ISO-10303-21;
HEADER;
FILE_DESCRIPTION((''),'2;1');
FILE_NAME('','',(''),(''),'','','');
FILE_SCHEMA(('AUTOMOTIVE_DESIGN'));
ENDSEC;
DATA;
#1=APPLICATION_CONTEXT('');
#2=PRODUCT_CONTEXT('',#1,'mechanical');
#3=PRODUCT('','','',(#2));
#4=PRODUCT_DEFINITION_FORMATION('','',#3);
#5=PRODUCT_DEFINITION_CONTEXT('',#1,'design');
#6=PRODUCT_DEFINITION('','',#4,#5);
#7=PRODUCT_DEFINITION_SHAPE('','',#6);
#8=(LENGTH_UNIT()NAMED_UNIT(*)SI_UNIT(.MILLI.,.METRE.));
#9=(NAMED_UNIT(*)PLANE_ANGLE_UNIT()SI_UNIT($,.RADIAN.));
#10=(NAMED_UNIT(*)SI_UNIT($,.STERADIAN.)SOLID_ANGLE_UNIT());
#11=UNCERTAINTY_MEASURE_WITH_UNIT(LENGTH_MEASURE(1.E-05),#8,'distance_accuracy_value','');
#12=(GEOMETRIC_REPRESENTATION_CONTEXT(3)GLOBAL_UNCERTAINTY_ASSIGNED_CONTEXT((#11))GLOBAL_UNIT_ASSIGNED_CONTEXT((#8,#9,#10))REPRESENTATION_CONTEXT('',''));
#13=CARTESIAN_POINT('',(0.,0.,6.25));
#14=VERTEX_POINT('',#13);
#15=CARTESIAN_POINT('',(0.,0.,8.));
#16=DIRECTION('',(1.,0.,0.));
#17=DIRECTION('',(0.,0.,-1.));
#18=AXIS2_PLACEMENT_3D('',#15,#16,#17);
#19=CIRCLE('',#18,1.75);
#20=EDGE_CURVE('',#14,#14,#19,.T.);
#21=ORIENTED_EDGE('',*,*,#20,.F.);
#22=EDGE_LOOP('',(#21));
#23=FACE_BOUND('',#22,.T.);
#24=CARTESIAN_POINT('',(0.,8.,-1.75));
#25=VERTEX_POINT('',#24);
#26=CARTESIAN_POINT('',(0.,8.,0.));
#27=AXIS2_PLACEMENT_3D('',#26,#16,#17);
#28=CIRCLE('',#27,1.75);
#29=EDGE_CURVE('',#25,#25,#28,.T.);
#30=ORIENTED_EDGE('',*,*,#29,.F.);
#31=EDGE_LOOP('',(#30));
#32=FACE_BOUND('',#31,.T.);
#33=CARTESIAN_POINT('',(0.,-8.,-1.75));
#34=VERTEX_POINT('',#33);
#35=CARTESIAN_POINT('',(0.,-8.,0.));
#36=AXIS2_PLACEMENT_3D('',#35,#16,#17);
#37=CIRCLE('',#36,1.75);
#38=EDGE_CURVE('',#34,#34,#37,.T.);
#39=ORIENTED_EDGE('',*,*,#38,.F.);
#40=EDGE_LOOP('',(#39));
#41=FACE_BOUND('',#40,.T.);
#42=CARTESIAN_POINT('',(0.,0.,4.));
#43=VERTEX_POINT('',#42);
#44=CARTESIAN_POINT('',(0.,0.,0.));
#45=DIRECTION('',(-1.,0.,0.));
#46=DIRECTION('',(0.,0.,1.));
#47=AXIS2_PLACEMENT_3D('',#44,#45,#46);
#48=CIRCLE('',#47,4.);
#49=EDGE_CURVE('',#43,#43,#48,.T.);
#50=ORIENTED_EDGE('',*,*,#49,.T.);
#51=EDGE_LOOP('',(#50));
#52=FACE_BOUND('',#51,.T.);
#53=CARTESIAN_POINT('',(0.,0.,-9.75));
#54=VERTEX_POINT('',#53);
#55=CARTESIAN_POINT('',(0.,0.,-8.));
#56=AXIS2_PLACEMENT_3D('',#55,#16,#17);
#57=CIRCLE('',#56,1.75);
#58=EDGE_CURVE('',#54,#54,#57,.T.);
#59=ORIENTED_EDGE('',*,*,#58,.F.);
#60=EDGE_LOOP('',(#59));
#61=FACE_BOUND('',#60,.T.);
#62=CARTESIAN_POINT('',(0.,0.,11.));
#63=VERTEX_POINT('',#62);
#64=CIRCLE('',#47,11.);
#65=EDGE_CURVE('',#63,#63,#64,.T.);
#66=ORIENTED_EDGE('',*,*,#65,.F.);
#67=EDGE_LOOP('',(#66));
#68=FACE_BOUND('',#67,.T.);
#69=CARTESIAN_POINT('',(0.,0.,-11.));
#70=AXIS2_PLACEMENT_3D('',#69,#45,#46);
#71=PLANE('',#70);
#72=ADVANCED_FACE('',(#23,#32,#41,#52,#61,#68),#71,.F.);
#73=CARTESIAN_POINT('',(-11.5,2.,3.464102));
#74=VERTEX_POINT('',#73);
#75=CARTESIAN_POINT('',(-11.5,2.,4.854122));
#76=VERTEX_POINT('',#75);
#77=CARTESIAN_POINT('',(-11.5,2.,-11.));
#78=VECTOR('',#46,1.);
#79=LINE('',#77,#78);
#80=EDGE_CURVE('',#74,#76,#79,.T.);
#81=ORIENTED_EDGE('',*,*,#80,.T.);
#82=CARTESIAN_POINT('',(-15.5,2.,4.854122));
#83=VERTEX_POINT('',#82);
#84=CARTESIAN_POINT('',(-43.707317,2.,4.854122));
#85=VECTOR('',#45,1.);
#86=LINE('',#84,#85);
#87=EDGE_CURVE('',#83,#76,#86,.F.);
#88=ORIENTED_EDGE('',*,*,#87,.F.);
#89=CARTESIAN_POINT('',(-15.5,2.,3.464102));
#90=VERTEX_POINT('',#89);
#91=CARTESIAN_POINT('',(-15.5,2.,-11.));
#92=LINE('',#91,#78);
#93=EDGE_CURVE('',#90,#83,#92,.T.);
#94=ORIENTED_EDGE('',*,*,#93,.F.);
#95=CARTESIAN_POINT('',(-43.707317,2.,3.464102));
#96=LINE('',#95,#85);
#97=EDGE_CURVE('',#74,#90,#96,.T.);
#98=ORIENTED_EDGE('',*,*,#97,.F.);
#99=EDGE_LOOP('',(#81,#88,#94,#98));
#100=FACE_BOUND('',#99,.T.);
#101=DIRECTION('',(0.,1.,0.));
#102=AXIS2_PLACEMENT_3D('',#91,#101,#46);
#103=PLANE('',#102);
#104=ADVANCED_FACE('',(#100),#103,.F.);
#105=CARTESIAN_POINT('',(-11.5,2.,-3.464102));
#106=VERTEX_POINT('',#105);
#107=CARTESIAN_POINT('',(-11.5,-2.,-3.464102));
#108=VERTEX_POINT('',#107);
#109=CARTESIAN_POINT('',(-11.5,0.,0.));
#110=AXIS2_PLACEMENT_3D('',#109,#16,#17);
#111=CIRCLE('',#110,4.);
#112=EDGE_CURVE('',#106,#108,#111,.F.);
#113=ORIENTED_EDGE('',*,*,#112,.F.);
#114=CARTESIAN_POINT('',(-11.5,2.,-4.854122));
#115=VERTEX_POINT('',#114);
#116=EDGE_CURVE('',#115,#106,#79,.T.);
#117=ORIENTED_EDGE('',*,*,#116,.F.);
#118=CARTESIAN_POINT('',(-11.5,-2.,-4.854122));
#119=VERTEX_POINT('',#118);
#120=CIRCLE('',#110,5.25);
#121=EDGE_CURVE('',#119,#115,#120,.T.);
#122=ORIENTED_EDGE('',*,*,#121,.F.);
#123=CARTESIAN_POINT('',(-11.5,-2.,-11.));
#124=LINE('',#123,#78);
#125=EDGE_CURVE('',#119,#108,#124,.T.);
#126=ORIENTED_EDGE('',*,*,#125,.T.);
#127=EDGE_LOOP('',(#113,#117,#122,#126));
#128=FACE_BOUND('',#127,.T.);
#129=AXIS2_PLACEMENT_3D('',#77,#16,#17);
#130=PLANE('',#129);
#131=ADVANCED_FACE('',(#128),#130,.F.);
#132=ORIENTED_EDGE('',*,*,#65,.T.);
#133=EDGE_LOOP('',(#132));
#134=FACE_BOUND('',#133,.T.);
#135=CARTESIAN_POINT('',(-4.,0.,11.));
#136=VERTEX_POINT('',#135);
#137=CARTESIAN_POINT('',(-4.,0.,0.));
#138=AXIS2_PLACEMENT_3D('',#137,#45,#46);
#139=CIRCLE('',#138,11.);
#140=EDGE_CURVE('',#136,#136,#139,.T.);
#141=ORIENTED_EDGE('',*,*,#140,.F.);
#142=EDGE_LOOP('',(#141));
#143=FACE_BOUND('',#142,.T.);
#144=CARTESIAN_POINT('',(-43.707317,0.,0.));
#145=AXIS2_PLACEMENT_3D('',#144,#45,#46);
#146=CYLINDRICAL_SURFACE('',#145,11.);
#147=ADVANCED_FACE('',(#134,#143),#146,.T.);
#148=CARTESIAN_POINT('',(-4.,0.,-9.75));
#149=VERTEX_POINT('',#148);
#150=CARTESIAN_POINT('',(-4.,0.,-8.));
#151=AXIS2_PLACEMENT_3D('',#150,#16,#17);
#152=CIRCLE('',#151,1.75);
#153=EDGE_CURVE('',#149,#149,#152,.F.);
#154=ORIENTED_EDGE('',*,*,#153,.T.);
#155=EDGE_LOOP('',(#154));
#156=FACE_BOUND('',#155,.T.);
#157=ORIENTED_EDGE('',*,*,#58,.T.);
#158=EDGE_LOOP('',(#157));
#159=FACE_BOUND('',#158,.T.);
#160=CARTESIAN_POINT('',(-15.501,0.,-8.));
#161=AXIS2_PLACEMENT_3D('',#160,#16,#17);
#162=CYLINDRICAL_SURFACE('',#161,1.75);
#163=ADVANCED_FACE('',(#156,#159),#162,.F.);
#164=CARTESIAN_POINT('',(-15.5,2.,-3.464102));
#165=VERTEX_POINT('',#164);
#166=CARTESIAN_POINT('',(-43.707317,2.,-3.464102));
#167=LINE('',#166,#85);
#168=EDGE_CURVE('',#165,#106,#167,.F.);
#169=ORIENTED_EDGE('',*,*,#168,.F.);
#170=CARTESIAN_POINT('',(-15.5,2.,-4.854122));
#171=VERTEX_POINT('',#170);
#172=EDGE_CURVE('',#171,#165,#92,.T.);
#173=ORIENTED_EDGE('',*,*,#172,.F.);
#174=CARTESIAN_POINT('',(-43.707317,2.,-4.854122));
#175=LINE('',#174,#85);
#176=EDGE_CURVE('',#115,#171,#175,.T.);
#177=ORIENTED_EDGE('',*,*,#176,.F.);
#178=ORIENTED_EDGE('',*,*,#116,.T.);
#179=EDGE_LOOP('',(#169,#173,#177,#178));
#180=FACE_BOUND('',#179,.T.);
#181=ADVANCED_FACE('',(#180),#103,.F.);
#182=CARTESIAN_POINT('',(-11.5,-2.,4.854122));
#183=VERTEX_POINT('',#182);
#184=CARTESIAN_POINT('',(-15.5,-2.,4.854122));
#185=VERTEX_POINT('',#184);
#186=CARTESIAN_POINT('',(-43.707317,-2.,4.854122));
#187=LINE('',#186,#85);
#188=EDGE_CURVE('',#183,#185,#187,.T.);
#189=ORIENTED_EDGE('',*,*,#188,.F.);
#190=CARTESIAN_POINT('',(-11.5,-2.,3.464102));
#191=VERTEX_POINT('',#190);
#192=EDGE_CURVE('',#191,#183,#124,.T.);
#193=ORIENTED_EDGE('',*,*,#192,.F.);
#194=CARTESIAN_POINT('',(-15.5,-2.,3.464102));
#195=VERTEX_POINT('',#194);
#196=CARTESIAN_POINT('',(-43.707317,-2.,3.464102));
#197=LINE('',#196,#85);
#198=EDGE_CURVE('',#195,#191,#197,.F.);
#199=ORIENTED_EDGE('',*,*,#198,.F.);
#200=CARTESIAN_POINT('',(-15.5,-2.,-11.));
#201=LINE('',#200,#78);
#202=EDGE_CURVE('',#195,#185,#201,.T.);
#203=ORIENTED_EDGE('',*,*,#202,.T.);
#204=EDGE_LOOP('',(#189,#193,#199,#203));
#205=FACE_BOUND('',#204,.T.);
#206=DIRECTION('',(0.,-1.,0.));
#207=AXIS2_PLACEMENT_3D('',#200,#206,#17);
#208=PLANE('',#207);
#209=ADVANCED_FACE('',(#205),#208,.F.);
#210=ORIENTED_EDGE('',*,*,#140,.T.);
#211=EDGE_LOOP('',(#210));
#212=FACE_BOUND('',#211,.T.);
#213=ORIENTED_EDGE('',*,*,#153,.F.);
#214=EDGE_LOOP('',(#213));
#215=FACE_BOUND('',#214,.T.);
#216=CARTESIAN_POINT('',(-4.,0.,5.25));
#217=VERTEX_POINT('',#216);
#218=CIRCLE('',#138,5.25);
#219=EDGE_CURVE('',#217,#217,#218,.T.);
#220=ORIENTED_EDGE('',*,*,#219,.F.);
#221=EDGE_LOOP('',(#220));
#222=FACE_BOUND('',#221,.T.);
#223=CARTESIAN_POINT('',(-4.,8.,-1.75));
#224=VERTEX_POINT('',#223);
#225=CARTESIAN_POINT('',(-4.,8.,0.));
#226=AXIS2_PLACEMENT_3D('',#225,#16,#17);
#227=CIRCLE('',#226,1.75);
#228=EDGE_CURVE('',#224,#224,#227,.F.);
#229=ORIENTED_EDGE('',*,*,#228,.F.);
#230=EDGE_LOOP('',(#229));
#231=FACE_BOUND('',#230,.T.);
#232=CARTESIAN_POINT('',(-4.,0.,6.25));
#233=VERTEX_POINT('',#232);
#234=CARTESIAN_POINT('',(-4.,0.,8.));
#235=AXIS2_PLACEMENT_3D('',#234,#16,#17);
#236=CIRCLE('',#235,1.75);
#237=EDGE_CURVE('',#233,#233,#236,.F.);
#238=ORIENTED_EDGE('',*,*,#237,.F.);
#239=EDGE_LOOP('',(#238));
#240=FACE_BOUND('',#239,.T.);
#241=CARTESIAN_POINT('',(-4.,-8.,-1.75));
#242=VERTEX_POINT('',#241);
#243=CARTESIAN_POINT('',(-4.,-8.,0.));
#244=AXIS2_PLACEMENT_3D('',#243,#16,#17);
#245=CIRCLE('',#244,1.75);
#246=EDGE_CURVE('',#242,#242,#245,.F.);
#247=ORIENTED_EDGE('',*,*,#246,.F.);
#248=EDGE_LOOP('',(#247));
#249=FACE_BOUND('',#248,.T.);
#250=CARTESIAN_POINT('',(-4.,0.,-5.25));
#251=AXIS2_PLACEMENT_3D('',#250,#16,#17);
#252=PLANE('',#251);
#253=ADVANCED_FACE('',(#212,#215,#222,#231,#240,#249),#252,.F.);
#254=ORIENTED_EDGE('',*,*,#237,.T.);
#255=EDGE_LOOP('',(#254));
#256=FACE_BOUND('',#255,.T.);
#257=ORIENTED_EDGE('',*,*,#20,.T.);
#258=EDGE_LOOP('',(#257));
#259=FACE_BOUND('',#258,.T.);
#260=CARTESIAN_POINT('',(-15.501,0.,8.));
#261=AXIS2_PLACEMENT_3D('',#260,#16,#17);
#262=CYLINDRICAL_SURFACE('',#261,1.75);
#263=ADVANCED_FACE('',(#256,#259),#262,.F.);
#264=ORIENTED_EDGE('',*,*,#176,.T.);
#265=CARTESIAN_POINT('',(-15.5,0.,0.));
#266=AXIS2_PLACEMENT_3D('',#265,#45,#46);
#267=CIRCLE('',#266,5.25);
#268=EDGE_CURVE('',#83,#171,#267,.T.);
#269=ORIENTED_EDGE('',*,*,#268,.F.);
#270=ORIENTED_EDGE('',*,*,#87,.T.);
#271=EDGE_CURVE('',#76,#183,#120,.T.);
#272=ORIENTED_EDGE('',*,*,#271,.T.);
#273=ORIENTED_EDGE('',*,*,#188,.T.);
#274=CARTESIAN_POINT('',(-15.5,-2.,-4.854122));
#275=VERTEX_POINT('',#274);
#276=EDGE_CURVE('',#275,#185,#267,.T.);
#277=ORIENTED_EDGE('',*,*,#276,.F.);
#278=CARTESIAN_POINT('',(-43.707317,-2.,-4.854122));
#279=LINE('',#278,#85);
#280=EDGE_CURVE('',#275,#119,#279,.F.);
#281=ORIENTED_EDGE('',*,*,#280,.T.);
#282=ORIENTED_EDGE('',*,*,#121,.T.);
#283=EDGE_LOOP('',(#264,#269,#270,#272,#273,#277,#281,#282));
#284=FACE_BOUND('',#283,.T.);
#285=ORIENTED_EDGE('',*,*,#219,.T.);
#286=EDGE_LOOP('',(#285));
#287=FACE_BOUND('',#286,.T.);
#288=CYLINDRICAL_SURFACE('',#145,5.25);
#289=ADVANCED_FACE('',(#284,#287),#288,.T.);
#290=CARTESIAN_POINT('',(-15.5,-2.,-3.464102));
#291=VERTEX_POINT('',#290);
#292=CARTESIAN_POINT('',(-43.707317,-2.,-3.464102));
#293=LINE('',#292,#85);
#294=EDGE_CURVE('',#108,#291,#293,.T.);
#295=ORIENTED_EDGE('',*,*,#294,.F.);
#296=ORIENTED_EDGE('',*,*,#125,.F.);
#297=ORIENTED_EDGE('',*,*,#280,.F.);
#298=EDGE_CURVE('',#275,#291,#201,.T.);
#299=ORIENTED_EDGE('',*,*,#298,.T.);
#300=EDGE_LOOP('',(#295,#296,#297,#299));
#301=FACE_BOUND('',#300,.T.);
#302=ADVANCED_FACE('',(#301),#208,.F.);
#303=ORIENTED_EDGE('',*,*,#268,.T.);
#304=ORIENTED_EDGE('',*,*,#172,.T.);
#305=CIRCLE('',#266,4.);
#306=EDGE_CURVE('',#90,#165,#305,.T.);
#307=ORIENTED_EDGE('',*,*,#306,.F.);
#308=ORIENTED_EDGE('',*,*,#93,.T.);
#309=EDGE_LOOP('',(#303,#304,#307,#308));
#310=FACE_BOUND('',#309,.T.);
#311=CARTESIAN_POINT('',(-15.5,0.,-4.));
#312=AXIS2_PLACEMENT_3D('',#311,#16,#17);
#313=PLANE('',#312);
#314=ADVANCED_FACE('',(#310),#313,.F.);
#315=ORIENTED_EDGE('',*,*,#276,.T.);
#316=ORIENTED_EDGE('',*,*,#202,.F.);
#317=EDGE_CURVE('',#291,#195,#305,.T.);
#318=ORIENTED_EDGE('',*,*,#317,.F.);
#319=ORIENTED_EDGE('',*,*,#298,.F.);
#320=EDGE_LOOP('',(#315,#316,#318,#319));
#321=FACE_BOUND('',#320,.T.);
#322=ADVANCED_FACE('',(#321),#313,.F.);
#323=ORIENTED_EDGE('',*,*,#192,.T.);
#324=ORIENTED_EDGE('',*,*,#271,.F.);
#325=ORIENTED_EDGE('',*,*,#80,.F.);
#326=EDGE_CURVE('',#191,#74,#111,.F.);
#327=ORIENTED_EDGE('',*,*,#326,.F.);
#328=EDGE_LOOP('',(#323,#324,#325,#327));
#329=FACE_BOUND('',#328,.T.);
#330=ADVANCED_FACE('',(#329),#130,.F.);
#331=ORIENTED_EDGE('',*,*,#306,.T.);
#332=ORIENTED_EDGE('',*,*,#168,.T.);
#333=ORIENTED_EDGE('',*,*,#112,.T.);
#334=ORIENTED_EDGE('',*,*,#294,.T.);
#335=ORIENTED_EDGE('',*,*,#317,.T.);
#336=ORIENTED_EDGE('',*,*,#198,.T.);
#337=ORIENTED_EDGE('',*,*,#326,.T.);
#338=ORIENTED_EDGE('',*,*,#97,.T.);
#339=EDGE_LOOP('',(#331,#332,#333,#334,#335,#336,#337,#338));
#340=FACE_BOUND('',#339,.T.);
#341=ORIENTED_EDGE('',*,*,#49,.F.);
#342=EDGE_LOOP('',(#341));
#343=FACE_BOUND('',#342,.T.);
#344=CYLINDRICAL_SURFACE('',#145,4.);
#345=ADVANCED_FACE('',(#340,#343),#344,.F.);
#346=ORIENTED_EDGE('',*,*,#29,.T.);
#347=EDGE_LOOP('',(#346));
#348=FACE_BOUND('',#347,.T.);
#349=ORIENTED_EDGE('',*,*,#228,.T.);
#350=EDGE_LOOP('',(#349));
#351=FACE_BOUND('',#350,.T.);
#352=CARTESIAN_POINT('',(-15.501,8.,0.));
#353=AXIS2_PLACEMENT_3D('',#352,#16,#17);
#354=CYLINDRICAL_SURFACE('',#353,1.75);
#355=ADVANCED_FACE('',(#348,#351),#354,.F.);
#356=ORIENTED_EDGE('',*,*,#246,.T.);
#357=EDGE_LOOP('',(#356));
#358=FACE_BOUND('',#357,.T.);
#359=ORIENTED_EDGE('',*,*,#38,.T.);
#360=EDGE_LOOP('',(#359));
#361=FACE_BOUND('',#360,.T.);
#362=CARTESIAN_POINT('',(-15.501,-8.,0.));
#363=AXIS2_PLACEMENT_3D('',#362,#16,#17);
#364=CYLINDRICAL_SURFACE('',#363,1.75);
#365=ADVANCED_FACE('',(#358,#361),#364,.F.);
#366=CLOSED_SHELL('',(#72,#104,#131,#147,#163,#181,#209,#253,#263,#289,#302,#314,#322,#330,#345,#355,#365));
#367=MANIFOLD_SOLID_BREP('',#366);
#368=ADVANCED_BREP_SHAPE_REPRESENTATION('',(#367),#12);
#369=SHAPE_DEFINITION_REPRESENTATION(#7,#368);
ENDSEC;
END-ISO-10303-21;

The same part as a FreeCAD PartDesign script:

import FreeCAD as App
import Part
import Sketcher


def add_polygon(sketch, points):
    """Adds a closed chain of lines whose ends are joined by coincident constraints."""
    first, n = sketch.GeometryCount, len(points)
    for a, b in zip(points, points[1:] + points[:1]):
        sketch.addGeometry(Part.LineSegment(App.Vector(*a, 0), App.Vector(*b, 0)), False)
    for i in range(n):
        sketch.addConstraint(Sketcher.Constraint("Coincident", first + i, 2, first + (i + 1) % n, 1))

doc = App.newDocument("Part")
params = doc.addObject("Spreadsheet::Sheet", "Params")
for row, (alias, value) in enumerate([
    ("sketch1_width", "4 mm"),
    ("sketch1_height", "7 mm"),
    ("sketch1_width2", "15.5 mm"),
    ("sketch1_height2", "1.25 mm"),
    ("revolution_angle", "360 deg"),
    ("sketch2_diameter", "3.5 mm"),
    ("sketch3_diameter", "3.5 mm"),
    ("sketch4_diameter", "3.5 mm"),
    ("sketch5_diameter", "3.5 mm"),
    ("sketch6_width", "4 mm"),
], start=1):
    params.set(f"A{row}", alias)
    params.set(f"B{row}", "=" + value)
    params.setAlias(f"B{row}", alias)

body = doc.addObject("PartDesign::Body", "Body")

# Sketch on XZ plane
sketch1 = body.newObject("Sketcher::SketchObject", "Sketch")
sketch1.AttachmentSupport = (doc.getObject("XZ_Plane"), [""])
sketch1.MapMode = "FlatFace"
add_polygon(sketch1, [(-15.5, -5.25), (-15.5, -4), (0, -4), (0, -11), (-4, -11), (-4, -5.25)])  # lines 0-5
sketch1.addConstraint(Sketcher.Constraint("Vertical", 0))
sketch1.addConstraint(Sketcher.Constraint("Horizontal", 1))
sketch1.addConstraint(Sketcher.Constraint("Vertical", 2))
sketch1.addConstraint(Sketcher.Constraint("Horizontal", 3))
sketch1.addConstraint(Sketcher.Constraint("Vertical", 4))
sketch1.addConstraint(Sketcher.Constraint("Horizontal", 5))
sketch1.addConstraint(Sketcher.Constraint("PointOnObject", 1, 2, -2))
sketch1.addConstraint(Sketcher.Constraint("DistanceX", 3, 2, 3, 1, 4.0))
sketch1.addConstraint(Sketcher.Constraint("DistanceY", 2, 2, 2, 1, 7.0))
sketch1.addConstraint(Sketcher.Constraint("DistanceX", 1, 1, 1, 2, 15.5))
sketch1.addConstraint(Sketcher.Constraint("DistanceY", 0, 2, -1, 1, 4.0))
sketch1.addConstraint(Sketcher.Constraint("DistanceY", 0, 1, 0, 2, 1.25))
sketch1.setExpression("Constraints[13]", "Params.sketch1_width")
sketch1.setExpression("Constraints[14]", "Params.sketch1_height")
sketch1.setExpression("Constraints[15]", "Params.sketch1_width2")
sketch1.setExpression("Constraints[17]", "Params.sketch1_height2")
revolution = body.newObject("PartDesign::Revolution", "Revolution")
revolution.Profile = sketch1
revolution.ReferenceAxis = (sketch1, ["H_Axis"])
revolution.setExpression("Angle", "Params.revolution_angle")

# Sketch on YZ plane
sketch2 = body.newObject("Sketcher::SketchObject", "Sketch001")
sketch2.AttachmentSupport = (doc.getObject("YZ_Plane"), [""])
sketch2.MapMode = "FlatFace"
sketch2.addGeometry(Part.Circle(App.Vector(8, 0, 0), App.Vector(0, 0, 1), 1.75), False)
sketch2.addConstraint(Sketcher.Constraint("PointOnObject", 0, 3, -1))
sketch2.addConstraint(Sketcher.Constraint("Diameter", 0, 3.5))
sketch2.addConstraint(Sketcher.Constraint("DistanceX", -1, 1, 0, 3, 8.0))
sketch2.setExpression("Constraints[1]", "Params.sketch2_diameter")
pocket1 = body.newObject("PartDesign::Pocket", "Pocket")
pocket1.Profile = sketch2
pocket1.Type = "UpToFirst"

# Sketch on YZ plane
sketch3 = body.newObject("Sketcher::SketchObject", "Sketch002")
sketch3.AttachmentSupport = (doc.getObject("YZ_Plane"), [""])
sketch3.MapMode = "FlatFace"
sketch3.addGeometry(Part.Circle(App.Vector(0, -8, 0), App.Vector(0, 0, 1), 1.75), False)
sketch3.addConstraint(Sketcher.Constraint("PointOnObject", 0, 3, -2))
sketch3.addConstraint(Sketcher.Constraint("Diameter", 0, 3.5))
sketch3.addConstraint(Sketcher.Constraint("DistanceY", 0, 3, -1, 1, 8.0))
sketch3.setExpression("Constraints[1]", "Params.sketch3_diameter")
pocket2 = body.newObject("PartDesign::Pocket", "Pocket001")
pocket2.Profile = sketch3
pocket2.Type = "UpToFirst"

# Sketch on YZ plane
sketch4 = body.newObject("Sketcher::SketchObject", "Sketch003")
sketch4.AttachmentSupport = (doc.getObject("YZ_Plane"), [""])
sketch4.MapMode = "FlatFace"
sketch4.addGeometry(Part.Circle(App.Vector(-8, 0, 0), App.Vector(0, 0, 1), 1.75), False)
sketch4.addConstraint(Sketcher.Constraint("PointOnObject", 0, 3, -1))
sketch4.addConstraint(Sketcher.Constraint("Diameter", 0, 3.5))
sketch4.addConstraint(Sketcher.Constraint("DistanceX", 0, 3, -1, 1, 8.0))
sketch4.setExpression("Constraints[1]", "Params.sketch4_diameter")
pocket3 = body.newObject("PartDesign::Pocket", "Pocket002")
pocket3.Profile = sketch4
pocket3.Type = "UpToFirst"

# Sketch on YZ plane
sketch5 = body.newObject("Sketcher::SketchObject", "Sketch004")
sketch5.AttachmentSupport = (doc.getObject("YZ_Plane"), [""])
sketch5.MapMode = "FlatFace"
sketch5.addGeometry(Part.Circle(App.Vector(0, 8, 0), App.Vector(0, 0, 1), 1.75), False)
sketch5.addConstraint(Sketcher.Constraint("PointOnObject", 0, 3, -2))
sketch5.addConstraint(Sketcher.Constraint("Diameter", 0, 3.5))
sketch5.addConstraint(Sketcher.Constraint("DistanceY", -1, 1, 0, 3, 8.0))
sketch5.setExpression("Constraints[1]", "Params.sketch5_diameter")
pocket4 = body.newObject("PartDesign::Pocket", "Pocket003")
pocket4.Profile = sketch5
pocket4.Type = "UpToFirst"

# Sketch on XY plane
sketch6 = body.newObject("Sketcher::SketchObject", "Sketch005")
sketch6.AttachmentSupport = (doc.getObject("XY_Plane"), [""])
sketch6.MapMode = "FlatFace"
add_polygon(sketch6, [(-15.5, 2), (-15.5, -2), (-11.5, -2), (-11.5, 2)])  # lines 0-3
sketch6.addConstraint(Sketcher.Constraint("Vertical", 0))
sketch6.addConstraint(Sketcher.Constraint("Horizontal", 1))
sketch6.addConstraint(Sketcher.Constraint("Vertical", 2))
sketch6.addConstraint(Sketcher.Constraint("Horizontal", 3))
sketch6.addConstraint(Sketcher.Constraint("Equal", 3, 0))
sketch6.addConstraint(Sketcher.Constraint("DistanceX", 1, 1, 1, 2, 4.0))
sketch6.addConstraint(Sketcher.Constraint("DistanceY", 0, 2, -1, 1, 2.0))
sketch6.addConstraint(Sketcher.Constraint("DistanceX", 0, 2, -1, 1, 15.5))
sketch6.setExpression("Constraints[9]", "Params.sketch6_width")
pocket5 = body.newObject("PartDesign::Pocket", "Pocket004")
pocket5.Profile = sketch6
pocket5.Type = "ThroughAll"
pocket5.Midplane = True

doc.recompute()
